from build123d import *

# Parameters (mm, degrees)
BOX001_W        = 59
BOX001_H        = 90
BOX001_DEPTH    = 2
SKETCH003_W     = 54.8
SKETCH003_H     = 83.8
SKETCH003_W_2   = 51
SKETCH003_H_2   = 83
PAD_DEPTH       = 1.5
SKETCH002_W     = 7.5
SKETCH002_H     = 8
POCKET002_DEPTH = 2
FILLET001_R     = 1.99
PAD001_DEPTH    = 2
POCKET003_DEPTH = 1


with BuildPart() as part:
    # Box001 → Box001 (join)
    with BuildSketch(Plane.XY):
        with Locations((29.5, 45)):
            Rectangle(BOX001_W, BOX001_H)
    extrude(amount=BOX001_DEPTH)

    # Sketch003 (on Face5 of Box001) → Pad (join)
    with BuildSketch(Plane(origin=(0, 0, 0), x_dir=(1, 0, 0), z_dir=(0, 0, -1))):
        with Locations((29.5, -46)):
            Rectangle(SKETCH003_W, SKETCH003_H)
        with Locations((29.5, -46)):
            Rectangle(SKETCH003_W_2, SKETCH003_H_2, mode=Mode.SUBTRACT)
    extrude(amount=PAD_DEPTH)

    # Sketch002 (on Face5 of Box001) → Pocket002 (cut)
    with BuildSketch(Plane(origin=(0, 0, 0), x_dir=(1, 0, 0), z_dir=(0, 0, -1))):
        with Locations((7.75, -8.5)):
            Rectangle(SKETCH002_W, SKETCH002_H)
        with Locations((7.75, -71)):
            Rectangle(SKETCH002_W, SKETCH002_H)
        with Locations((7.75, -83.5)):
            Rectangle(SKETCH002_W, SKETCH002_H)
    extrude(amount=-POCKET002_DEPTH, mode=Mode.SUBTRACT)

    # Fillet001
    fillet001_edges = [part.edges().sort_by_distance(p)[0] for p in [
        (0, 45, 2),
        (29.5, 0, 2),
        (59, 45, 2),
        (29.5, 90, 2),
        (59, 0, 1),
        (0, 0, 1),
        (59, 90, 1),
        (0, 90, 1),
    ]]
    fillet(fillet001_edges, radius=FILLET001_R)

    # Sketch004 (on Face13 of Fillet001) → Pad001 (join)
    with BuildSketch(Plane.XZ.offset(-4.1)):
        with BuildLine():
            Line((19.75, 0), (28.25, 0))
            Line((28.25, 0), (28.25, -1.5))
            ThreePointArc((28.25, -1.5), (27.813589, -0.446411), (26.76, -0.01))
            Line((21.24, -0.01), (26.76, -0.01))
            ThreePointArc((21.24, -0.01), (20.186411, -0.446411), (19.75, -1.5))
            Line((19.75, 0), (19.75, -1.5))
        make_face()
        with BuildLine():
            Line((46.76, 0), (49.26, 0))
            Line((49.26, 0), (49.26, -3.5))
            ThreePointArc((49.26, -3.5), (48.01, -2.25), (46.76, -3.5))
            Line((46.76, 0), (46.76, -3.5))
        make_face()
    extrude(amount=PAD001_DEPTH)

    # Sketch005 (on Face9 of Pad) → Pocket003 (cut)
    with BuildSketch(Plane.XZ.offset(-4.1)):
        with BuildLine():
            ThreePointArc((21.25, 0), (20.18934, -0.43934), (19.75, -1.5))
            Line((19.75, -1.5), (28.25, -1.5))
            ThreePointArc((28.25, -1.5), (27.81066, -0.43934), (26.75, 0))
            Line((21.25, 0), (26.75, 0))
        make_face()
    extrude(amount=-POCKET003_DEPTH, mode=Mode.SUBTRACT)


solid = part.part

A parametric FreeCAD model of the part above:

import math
import FreeCAD as App
import Part
import Sketcher

V = App.Vector
Q = App.Units.Quantity


def edges_at(feature, points):
    """Names of the edges that pass closest to the given points."""
    edges = feature.Shape.Edges
    near = lambda p: min(range(len(edges)), key=lambda i: edges[i].distToShape(Part.Vertex(*p))[0])
    return sorted({f"Edge{near(p) + 1}" for p in points})

doc = App.newDocument("Part")
body = doc.addObject("PartDesign::Body", "Body")

sketch1 = doc.addObject("Sketcher::SketchObject", "Sketch")
body.addObject(sketch1)
sketch1.AttachmentSupport = (doc.XY_Plane, [""])
sketch1.MapMode = "FlatFace"
sketch1.addGeometry([
    Part.LineSegment(V(0, 90, 0), V(0, 0, 0)),
    Part.LineSegment(V(0, 0, 0), V(59, 0, 0)),
    Part.LineSegment(V(59, 0, 0), V(59, 90, 0)),
    Part.LineSegment(V(59, 90, 0), V(0, 90, 0)),
], False)
sketch1.addConstraint([
    Sketcher.Constraint("Coincident", 0, 2, 1, 1),
    Sketcher.Constraint("Coincident", 1, 2, 2, 1),
    Sketcher.Constraint("Coincident", 2, 2, 3, 1),
    Sketcher.Constraint("Coincident", 3, 2, 0, 1),
    Sketcher.Constraint("Vertical", 0),
    Sketcher.Constraint("Horizontal", 1),
    Sketcher.Constraint("Vertical", 2),
    Sketcher.Constraint("Horizontal", 3),
    Sketcher.Constraint("Coincident", 0, 2, -1, 1),
    Sketcher.Constraint("DistanceX", 1, 1, 1, 2, Q("59 mm")),
    Sketcher.Constraint("DistanceY", 0, 2, 0, 1, Q("90 mm")),
])
pad1 = doc.addObject("PartDesign::Pad", "Pad")
body.addObject(pad1)
pad1.Profile = sketch1
pad1.Length = 2

sketch2 = doc.addObject("Sketcher::SketchObject", "Sketch001")
body.addObject(sketch2)
sketch2.AttachmentSupport = (doc.XY_Plane, [""])
sketch2.MapMode = "FlatFace"
sketch2.addGeometry([
    Part.LineSegment(V(2, 4, 0), V(2, 88, 0)),
    Part.LineSegment(V(2, 88, 0), V(57, 88, 0)),
    Part.LineSegment(V(57, 88, 0), V(57, 4, 0)),
    Part.LineSegment(V(57, 4, 0), V(2, 4, 0)),
    Part.LineSegment(V(55, 88, 0), V(4, 88, 0)),
    Part.LineSegment(V(4, 88, 0), V(4, 4, 0)),
    Part.LineSegment(V(4, 4, 0), V(55, 4, 0)),
    Part.LineSegment(V(55, 4, 0), V(55, 88, 0)),
], False)
sketch2.addConstraint([
    Sketcher.Constraint("Coincident", 0, 2, 1, 1),
    Sketcher.Constraint("Coincident", 1, 2, 2, 1),
    Sketcher.Constraint("Coincident", 2, 2, 3, 1),
    Sketcher.Constraint("Coincident", 3, 2, 0, 1),
    Sketcher.Constraint("Coincident", 4, 2, 5, 1),
    Sketcher.Constraint("Coincident", 5, 2, 6, 1),
    Sketcher.Constraint("Coincident", 6, 2, 7, 1),
    Sketcher.Constraint("Coincident", 7, 2, 4, 1),
    Sketcher.Constraint("Vertical", 0),
    Sketcher.Constraint("Horizontal", 1),
    Sketcher.Constraint("Vertical", 2),
    Sketcher.Constraint("Horizontal", 3),
    Sketcher.Constraint("Horizontal", 4),
    Sketcher.Constraint("Vertical", 5),
    Sketcher.Constraint("Horizontal", 6),
    Sketcher.Constraint("Vertical", 7),
    Sketcher.Constraint("DistanceX", 4, 2, 4, 1, Q("51 mm")),
    Sketcher.Constraint("DistanceY", 5, 2, 5, 1, Q("83 mm")),
    Sketcher.Constraint("DistanceX", 1, 1, 1, 2, Q("54.8 mm")),
    Sketcher.Constraint("DistanceY", 0, 1, 0, 2, Q("83.8 mm")),
    Sketcher.Constraint("DistanceX", -1, 1, 4, 2, Q("4 mm")),
    Sketcher.Constraint("DistanceX", -1, 1, 0, 2, Q("2.1 mm")),
    Sketcher.Constraint("DistanceY", -1, 1, 0, 2, Q("87.9 mm")),
    Sketcher.Constraint("DistanceY", -1, 1, 4, 2, Q("87.5 mm")),
])
pad2 = doc.addObject("PartDesign::Pad", "Pad001")
body.addObject(pad2)
pad2.Profile = sketch2
pad2.Length = 1.5
pad2.Reversed = True

sketch3 = doc.addObject("Sketcher::SketchObject", "Sketch002")
body.addObject(sketch3)
sketch3.AttachmentSupport = (doc.XY_Plane, [""])
sketch3.MapMode = "FlatFace"
sketch3.addGeometry([
    Part.LineSegment(V(4, 4, 0), V(4, 12, 0)),
    Part.LineSegment(V(4, 12, 0), V(12, 12, 0)),
    Part.LineSegment(V(12, 12, 0), V(12, 4, 0)),
    Part.LineSegment(V(12, 4, 0), V(4, 4, 0)),
    Part.LineSegment(V(4, 67, 0), V(4, 75, 0)),
    Part.LineSegment(V(4, 75, 0), V(12, 75, 0)),
    Part.LineSegment(V(12, 75, 0), V(12, 67, 0)),
    Part.LineSegment(V(12, 67, 0), V(4, 67, 0)),
    Part.LineSegment(V(4, 80, 0), V(4, 88, 0)),
    Part.LineSegment(V(4, 88, 0), V(12, 88, 0)),
    Part.LineSegment(V(12, 88, 0), V(12, 80, 0)),
    Part.LineSegment(V(12, 80, 0), V(4, 80, 0)),
], False)
sketch3.addConstraint([
    Sketcher.Constraint("Coincident", 0, 2, 1, 1),
    Sketcher.Constraint("Coincident", 1, 2, 2, 1),
    Sketcher.Constraint("Coincident", 2, 2, 3, 1),
    Sketcher.Constraint("Coincident", 3, 2, 0, 1),
    Sketcher.Constraint("Coincident", 4, 2, 5, 1),
    Sketcher.Constraint("Coincident", 5, 2, 6, 1),
    Sketcher.Constraint("Coincident", 6, 2, 7, 1),
    Sketcher.Constraint("Coincident", 7, 2, 4, 1),
    Sketcher.Constraint("Coincident", 8, 2, 9, 1),
    Sketcher.Constraint("Coincident", 9, 2, 10, 1),
    Sketcher.Constraint("Coincident", 10, 2, 11, 1),
    Sketcher.Constraint("Coincident", 11, 2, 8, 1),
    Sketcher.Constraint("Vertical", 0),
    Sketcher.Constraint("Horizontal", 1),
    Sketcher.Constraint("Vertical", 2),
    Sketcher.Constraint("Horizontal", 3),
    Sketcher.Constraint("Vertical", 4),
    Sketcher.Constraint("Horizontal", 5),
    Sketcher.Constraint("Vertical", 6),
    Sketcher.Constraint("Horizontal", 7),
    Sketcher.Constraint("Vertical", 8),
    Sketcher.Constraint("Horizontal", 9),
    Sketcher.Constraint("Vertical", 10),
    Sketcher.Constraint("Horizontal", 11),
    Sketcher.Constraint("Vertical", 3, 2, 4, 2),
    Sketcher.Constraint("Vertical", 2, 2, 5, 2),
    Sketcher.Constraint("Vertical", 7, 2, 8, 2),
    Sketcher.Constraint("Vertical", 6, 2, 9, 2),
    Sketcher.Constraint("Equal", 2, 4),
    Sketcher.Constraint("Equal", 6, 8),
    Sketcher.Constraint("DistanceY", 0, 1, 0, 2, Q("8 mm")),
    Sketcher.Constraint("DistanceX", 1, 1, 1, 2, Q("7.5 mm")),
    Sketcher.Constraint("DistanceX", -1, 1, 0, 2, Q("4 mm")),
    Sketcher.Constraint("DistanceY", -1, 1, 4, 2, Q("75 mm")),
    Sketcher.Constraint("DistanceY", 0, 2, 8, 2, Q("75 mm")),
    Sketcher.Constraint("DistanceY", -1, 1, 0, 2, Q("12.5 mm")),
])
pocket1 = doc.addObject("PartDesign::Pocket", "Pocket")
body.addObject(pocket1)
pocket1.Profile = sketch3
pocket1.Length = 2
pocket1.Reversed = True
doc.recompute()

fillet = doc.addObject("PartDesign::Fillet", "Fillet")
body.addObject(fillet)
fillet.Base = (pocket1, edges_at(pocket1, [
    (0, 45, 2),
    (29.5, 0, 2),
    (59, 45, 2),
    (29.5, 90, 2),
    (59, 0, 1),
    (0, 0, 1),
    (59, 90, 1),
    (0, 90, 1),
]))
fillet.Radius = 1.99

sketch4 = doc.addObject("Sketcher::SketchObject", "Sketch003")
body.addObject(sketch4)
sketch4.AttachmentSupport = (doc.XZ_Plane, [""])
sketch4.MapMode = "FlatFace"
sketch4.AttachmentOffset = App.Placement(V(0, 0, -4.1), App.Rotation())
sketch4.addGeometry([
    Part.LineSegment(V(28.2, 0, 0), V(19.8, 0, 0)),
    Part.LineSegment(V(19.8, 0, 0), V(19.8, -1.5, 0)),
    Part.ArcOfCircle(Part.Circle(V(21.2, -1.5, 0), V(0, 0, 1), 1.5), math.radians(90), math.radians(180)),
    Part.LineSegment(V(21.2, 0, 0), V(26.8, 0, 0)),
    Part.ArcOfCircle(Part.Circle(V(26.8, -1.5, 0), V(0, 0, 1), 1.5), math.radians(0), math.radians(90)),
    Part.LineSegment(V(28.2, -1.5, 0), V(28.2, 0, 0)),
    Part.LineSegment(V(49.3, 0, 0), V(46.8, 0, 0)),
    Part.LineSegment(V(46.8, 0, 0), V(46.8, -3.5, 0)),
    Part.ArcOfCircle(Part.Circle(V(48, -3.5, 0), V(0, 0, 1), 1.2), math.radians(0), math.radians(180)),
    Part.LineSegment(V(49.3, -3.5, 0), V(49.3, 0, 0)),
], False)
sketch4.addConstraint([
    Sketcher.Constraint("Coincident", 0, 2, 1, 1),
    Sketcher.Constraint("Tangent", 1, 2, 2, 2),
    Sketcher.Constraint("Tangent", 2, 1, 3, 1),
    Sketcher.Constraint("Tangent", 3, 2, 4, 2),
    Sketcher.Constraint("Tangent", 4, 1, 5, 1),
    Sketcher.Constraint("Coincident", 5, 2, 0, 1),
    Sketcher.Constraint("Coincident", 6, 2, 7, 1),
    Sketcher.Constraint("Tangent", 7, 2, 8, 2),
    Sketcher.Constraint("Tangent", 8, 1, 9, 1),
    Sketcher.Constraint("Coincident", 9, 2, 6, 1),
    Sketcher.Constraint("Horizontal", 0),
    Sketcher.Constraint("Vertical", 1),
    Sketcher.Constraint("Horizontal", 3),
    Sketcher.Constraint("Vertical", 5),
    Sketcher.Constraint("Horizontal", 6),
    Sketcher.Constraint("Vertical", 7),
    Sketcher.Constraint("Vertical", 9),
    Sketcher.Constraint("Equal", 2, 4),
    Sketcher.Constraint("PointOnObject", 0, 2, -1),
    Sketcher.Constraint("PointOnObject", 6, 2, -1),
    Sketcher.Constraint("Radius", 2, Q("1.49 mm")),
    Sketcher.Constraint("Radius", 8, Q("1.25 mm")),
    Sketcher.Constraint("DistanceX", 0, 2, 0, 1, Q("8.5 mm")),
    Sketcher.Constraint("DistanceY", 1, 2, 1, 1, Q("1.5 mm")),
    Sketcher.Constraint("DistanceY", 7, 2, 7, 1, Q("3.5 mm")),
    Sketcher.Constraint("DistanceX", 3, 2, 6, 2, Q("20 mm")),
    Sketcher.Constraint("DistanceX", -1, 1, 2, 3, Q("21.24 mm")),
])
pad3 = doc.addObject("PartDesign::Pad", "Pad002")
body.addObject(pad3)
pad3.Profile = sketch4
pad3.Length = 2

sketch5 = doc.addObject("Sketcher::SketchObject", "Sketch004")
body.addObject(sketch5)
sketch5.AttachmentSupport = (doc.XZ_Plane, [""])
sketch5.MapMode = "FlatFace"
sketch5.AttachmentOffset = App.Placement(V(0, 0, -4.1), App.Rotation())
sketch5.addGeometry([
    Part.ArcOfCircle(Part.Circle(V(21.3, -1.5, 0), V(0, 0, 1), 1.5), math.radians(90), math.radians(180)),
    Part.LineSegment(V(19.8, -1.5, 0), V(28.2, -1.5, 0)),
    Part.ArcOfCircle(Part.Circle(V(26.7, -1.5, 0), V(0, 0, 1), 1.5), math.radians(0), math.radians(90)),
    Part.LineSegment(V(26.8, 0, 0), V(21.2, 0, 0)),
], False)
sketch5.addConstraint([
    Sketcher.Constraint("Coincident", 0, 2, 1, 1),
    Sketcher.Constraint("Coincident", 1, 2, 2, 1),
    Sketcher.Constraint("Tangent", 2, 2, 3, 1),
    Sketcher.Constraint("Tangent", 3, 2, 0, 1),
    Sketcher.Constraint("Horizontal", 1),
    Sketcher.Constraint("Horizontal", 3),
    Sketcher.Constraint("Equal", 0, 2),
    Sketcher.Constraint("PointOnObject", 2, 2, -1),
    Sketcher.Constraint("Horizontal", 2, 3, 0, 2),
    Sketcher.Constraint("Radius", 0, Q("1.500001 mm")),
    Sketcher.Constraint("DistanceX", 1, 1, 1, 2, Q("8.5 mm")),
    Sketcher.Constraint("DistanceX", -1, 1, 0, 3, Q("21.250001 mm")),
])
pocket2 = doc.addObject("PartDesign::Pocket", "Pocket001")
body.addObject(pocket2)
pocket2.Profile = sketch5
pocket2.Length = 1

doc.recompute()
